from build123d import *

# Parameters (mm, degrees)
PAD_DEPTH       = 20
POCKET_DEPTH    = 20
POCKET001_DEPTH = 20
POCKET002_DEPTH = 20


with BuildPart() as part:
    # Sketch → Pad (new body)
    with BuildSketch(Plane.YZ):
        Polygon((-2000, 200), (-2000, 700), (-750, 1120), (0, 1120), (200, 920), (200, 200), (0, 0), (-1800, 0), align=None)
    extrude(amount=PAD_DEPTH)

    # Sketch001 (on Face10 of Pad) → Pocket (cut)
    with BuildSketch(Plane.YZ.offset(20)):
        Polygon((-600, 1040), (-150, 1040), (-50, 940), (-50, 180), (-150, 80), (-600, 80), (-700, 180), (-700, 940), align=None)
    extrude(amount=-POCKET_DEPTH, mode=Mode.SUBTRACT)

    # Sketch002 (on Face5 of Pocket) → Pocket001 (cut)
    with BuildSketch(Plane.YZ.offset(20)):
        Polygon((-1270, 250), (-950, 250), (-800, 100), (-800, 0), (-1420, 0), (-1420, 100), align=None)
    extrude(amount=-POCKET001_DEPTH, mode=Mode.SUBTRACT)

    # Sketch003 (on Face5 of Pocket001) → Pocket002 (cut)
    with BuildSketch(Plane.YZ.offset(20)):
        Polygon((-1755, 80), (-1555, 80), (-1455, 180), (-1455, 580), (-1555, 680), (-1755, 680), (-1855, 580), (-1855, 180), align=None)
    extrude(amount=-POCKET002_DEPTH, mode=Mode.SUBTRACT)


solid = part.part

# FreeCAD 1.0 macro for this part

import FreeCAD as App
import Part
import Sketcher

V = App.Vector
Q = App.Units.Quantity

doc = App.newDocument("Part")
body = doc.addObject("PartDesign::Body", "Body")

sketch1 = body.newObject("Sketcher::SketchObject", "Sketch")
sketch1.AttachmentSupport = (doc.getObject("YZ_Plane"), [""])
sketch1.MapMode = "FlatFace"
sketch1.addGeometry([
    Part.LineSegment(V(-2000, 700, 0), V(-2000, 200, 0)),
    Part.LineSegment(V(-2000, 200, 0), V(-1800, 0, 0)),
    Part.LineSegment(V(-1800, 0, 0), V(0, 0, 0)),
    Part.LineSegment(V(0, 0, 0), V(200, 200, 0)),
    Part.LineSegment(V(200, 200, 0), V(200, 920, 0)),
    Part.LineSegment(V(200, 920, 0), V(0, 1120, 0)),
    Part.LineSegment(V(0, 1120, 0), V(-750, 1120, 0)),
    Part.LineSegment(V(-750, 1120, 0), V(-2000, 700, 0)),
], False)
sketch1.addConstraint([
    Sketcher.Constraint("Coincident", 0, 2, 1, 1),
    Sketcher.Constraint("Coincident", 1, 2, 2, 1),
    Sketcher.Constraint("Coincident", 2, 2, 3, 1),
    Sketcher.Constraint("Coincident", 3, 2, 4, 1),
    Sketcher.Constraint("Coincident", 4, 2, 5, 1),
    Sketcher.Constraint("Coincident", 5, 2, 6, 1),
    Sketcher.Constraint("Coincident", 6, 2, 7, 1),
    Sketcher.Constraint("Coincident", 7, 2, 0, 1),
    Sketcher.Constraint("Vertical", 0),
    Sketcher.Constraint("Horizontal", 2),
    Sketcher.Constraint("Vertical", 4),
    Sketcher.Constraint("Horizontal", 6),
    Sketcher.Constraint("Coincident", 2, 2, -1, 1),
    Sketcher.Constraint("PointOnObject", 5, 2, -2),
    Sketcher.Constraint("Perpendicular", 1, 3),
    Sketcher.Constraint("Perpendicular", 3, 5),
    Sketcher.Constraint("Horizontal", 0, 2, 3, 2),
    Sketcher.Constraint("Equal", 1, 3),
    Sketcher.Constraint("DistanceX", 2, 1, 2, 2, Q("1800 mm")),
    Sketcher.Constraint("DistanceX", 6, 2, 6, 1, Q("750 mm")),
    Sketcher.Constraint("DistanceY", 0, 2, 0, 1, Q("500 mm")),
    Sketcher.Constraint("DistanceY", 4, 1, 4, 2, Q("720 mm")),
    Sketcher.Constraint("DistanceX", 0, 2, -1, 1, Q("2000 mm")),
])
pad1 = body.newObject("PartDesign::Pad", "Pad")
pad1.Profile = sketch1
pad1.Length = 20

sketch2 = body.newObject("Sketcher::SketchObject", "Sketch001")
sketch2.AttachmentSupport = (doc.getObject("YZ_Plane"), [""])
sketch2.MapMode = "FlatFace"
sketch2.AttachmentOffset = App.Placement(V(0, 0, 20), App.Rotation())
sketch2.addGeometry([
    Part.LineSegment(V(-150, 1040, 0), V(-600, 1040, 0)),
    Part.LineSegment(V(-600, 1040, 0), V(-700, 940, 0)),
    Part.LineSegment(V(-700, 940, 0), V(-700, 180, 0)),
    Part.LineSegment(V(-700, 180, 0), V(-600, 80, 0)),
    Part.LineSegment(V(-600, 80, 0), V(-150, 80, 0)),
    Part.LineSegment(V(-150, 80, 0), V(-50, 180, 0)),
    Part.LineSegment(V(-50, 180, 0), V(-50, 940, 0)),
    Part.LineSegment(V(-50, 940, 0), V(-150, 1040, 0)),
], False)
sketch2.addConstraint([
    Sketcher.Constraint("Coincident", 0, 2, 1, 1),
    Sketcher.Constraint("Coincident", 1, 2, 2, 1),
    Sketcher.Constraint("Coincident", 2, 2, 3, 1),
    Sketcher.Constraint("Coincident", 3, 2, 4, 1),
    Sketcher.Constraint("Coincident", 4, 2, 5, 1),
    Sketcher.Constraint("Coincident", 5, 2, 6, 1),
    Sketcher.Constraint("Coincident", 6, 2, 7, 1),
    Sketcher.Constraint("Coincident", 7, 2, 0, 1),
    Sketcher.Constraint("Horizontal", 0),
    Sketcher.Constraint("Vertical", 2),
    Sketcher.Constraint("Horizontal", 4),
    Sketcher.Constraint("Vertical", 6),
    Sketcher.Constraint("Perpendicular", 1, 3),
    Sketcher.Constraint("Perpendicular", 3, 5),
    Sketcher.Constraint("Perpendicular", 5, 7),
    Sketcher.Constraint("Horizontal", 2, 2, 5, 2),
    Sketcher.Constraint("Horizontal", 1, 2, 6, 2),
    Sketcher.Constraint("Vertical", 0, 2, 3, 2),
    Sketcher.Constraint("Vertical", 4, 2, 7, 2),
    Sketcher.Constraint("DistanceX", 0, 2, 0, 1, Q("450 mm")),
    Sketcher.Constraint("DistanceY", 2, 2, 2, 1, Q("760 mm")),
    Sketcher.Constraint("DistanceX", 0, 2, -1, 1, Q("600 mm")),
    Sketcher.Constraint("DistanceY", -1, 1, 0, 2, Q("1040 mm")),
    Sketcher.Constraint("DistanceX", 1, 2, -1, 1, Q("700 mm")),
])
pocket1 = body.newObject("PartDesign::Pocket", "Pocket")
pocket1.Profile = sketch2
pocket1.Length = 20

sketch3 = body.newObject("Sketcher::SketchObject", "Sketch002")
sketch3.AttachmentSupport = (doc.getObject("YZ_Plane"), [""])
sketch3.MapMode = "FlatFace"
sketch3.AttachmentOffset = App.Placement(V(0, 0, 20), App.Rotation())
sketch3.addGeometry([
    Part.LineSegment(V(-950, 250, 0), V(-1270, 250, 0)),
    Part.LineSegment(V(-1270, 250, 0), V(-1420, 100, 0)),
    Part.LineSegment(V(-1420, 100, 0), V(-1420, 0, 0)),
    Part.LineSegment(V(-1420, 0, 0), V(-800, 0, 0)),
    Part.LineSegment(V(-800, 0, 0), V(-800, 100, 0)),
    Part.LineSegment(V(-800, 100, 0), V(-950, 250, 0)),
], False)
sketch3.addConstraint([
    Sketcher.Constraint("Coincident", 0, 2, 1, 1),
    Sketcher.Constraint("Coincident", 1, 2, 2, 1),
    Sketcher.Constraint("Coincident", 2, 2, 3, 1),
    Sketcher.Constraint("Coincident", 3, 2, 4, 1),
    Sketcher.Constraint("Coincident", 4, 2, 5, 1),
    Sketcher.Constraint("Coincident", 5, 2, 0, 1),
    Sketcher.Constraint("Horizontal", 0),
    Sketcher.Constraint("Vertical", 2),
    Sketcher.Constraint("Horizontal", 3),
    Sketcher.Constraint("Vertical", 4),
    Sketcher.Constraint("PointOnObject", 2, 2, -1),
    Sketcher.Constraint("Perpendicular", 1, 5),
    Sketcher.Constraint("Horizontal", 1, 2, 4, 2),
    Sketcher.Constraint("Equal", 1, 5),
    Sketcher.Constraint("DistanceX", 0, 2, 0, 1, Q("320 mm")),
    Sketcher.Constraint("DistanceX", 3, 1, 3, 2, Q("620 mm")),
    Sketcher.Constraint("DistanceY", 2, 2, 2, 1, Q("100 mm")),
    Sketcher.Constraint("DistanceX", 0, 2, -1, 1, Q("1270 mm")),
])
pocket2 = body.newObject("PartDesign::Pocket", "Pocket001")
pocket2.Profile = sketch3
pocket2.Length = 20

sketch4 = body.newObject("Sketcher::SketchObject", "Sketch003")
sketch4.AttachmentSupport = (doc.getObject("YZ_Plane"), [""])
sketch4.MapMode = "FlatFace"
sketch4.AttachmentOffset = App.Placement(V(0, 0, 20), App.Rotation())
sketch4.addGeometry([
    Part.LineSegment(V(-1755, 80, 0), V(-1555, 80, 0)),
    Part.LineSegment(V(-1555, 80, 0), V(-1455, 180, 0)),
    Part.LineSegment(V(-1455, 180, 0), V(-1455, 580, 0)),
    Part.LineSegment(V(-1455, 580, 0), V(-1555, 680, 0)),
    Part.LineSegment(V(-1555, 680, 0), V(-1755, 680, 0)),
    Part.LineSegment(V(-1755, 680, 0), V(-1855, 580, 0)),
    Part.LineSegment(V(-1855, 580, 0), V(-1855, 180, 0)),
    Part.LineSegment(V(-1855, 180, 0), V(-1755, 80, 0)),
], False)
sketch4.addConstraint([
    Sketcher.Constraint("Coincident", 0, 2, 1, 1),
    Sketcher.Constraint("Coincident", 1, 2, 2, 1),
    Sketcher.Constraint("Coincident", 2, 2, 3, 1),
    Sketcher.Constraint("Coincident", 3, 2, 4, 1),
    Sketcher.Constraint("Coincident", 4, 2, 5, 1),
    Sketcher.Constraint("Coincident", 5, 2, 6, 1),
    Sketcher.Constraint("Coincident", 6, 2, 7, 1),
    Sketcher.Constraint("Coincident", 7, 2, 0, 1),
    Sketcher.Constraint("Horizontal", 0),
    Sketcher.Constraint("Vertical", 2),
    Sketcher.Constraint("Horizontal", 4),
    Sketcher.Constraint("Vertical", 6),
    Sketcher.Constraint("Perpendicular", 1, 3),
    Sketcher.Constraint("Perpendicular", 3, 5),
    Sketcher.Constraint("Perpendicular", 5, 7),
    Sketcher.Constraint("Horizontal", 2, 2, 5, 2),
    Sketcher.Constraint("Horizontal", 1, 2, 6, 2),
    Sketcher.Constraint("Vertical", 0, 2, 3, 2),
    Sketcher.Constraint("Vertical", 4, 2, 7, 2),
    Sketcher.Constraint("DistanceX", 0, 1, 0, 2, Q("200 mm")),
    Sketcher.Constraint("DistanceY", 2, 1, 2, 2, Q("400 mm")),
    Sketcher.Constraint("DistanceX", 0, 2, -1, 1, Q("1555 mm")),
    Sketcher.Constraint("DistanceY", -1, 1, 0, 2, Q("80 mm")),
    Sketcher.Constraint("DistanceX", 1, 2, -1, 1, Q("1455 mm")),
])
pocket3 = body.newObject("PartDesign::Pocket", "Pocket002")
pocket3.Profile = sketch4
pocket3.Length = 20

doc.recompute()
